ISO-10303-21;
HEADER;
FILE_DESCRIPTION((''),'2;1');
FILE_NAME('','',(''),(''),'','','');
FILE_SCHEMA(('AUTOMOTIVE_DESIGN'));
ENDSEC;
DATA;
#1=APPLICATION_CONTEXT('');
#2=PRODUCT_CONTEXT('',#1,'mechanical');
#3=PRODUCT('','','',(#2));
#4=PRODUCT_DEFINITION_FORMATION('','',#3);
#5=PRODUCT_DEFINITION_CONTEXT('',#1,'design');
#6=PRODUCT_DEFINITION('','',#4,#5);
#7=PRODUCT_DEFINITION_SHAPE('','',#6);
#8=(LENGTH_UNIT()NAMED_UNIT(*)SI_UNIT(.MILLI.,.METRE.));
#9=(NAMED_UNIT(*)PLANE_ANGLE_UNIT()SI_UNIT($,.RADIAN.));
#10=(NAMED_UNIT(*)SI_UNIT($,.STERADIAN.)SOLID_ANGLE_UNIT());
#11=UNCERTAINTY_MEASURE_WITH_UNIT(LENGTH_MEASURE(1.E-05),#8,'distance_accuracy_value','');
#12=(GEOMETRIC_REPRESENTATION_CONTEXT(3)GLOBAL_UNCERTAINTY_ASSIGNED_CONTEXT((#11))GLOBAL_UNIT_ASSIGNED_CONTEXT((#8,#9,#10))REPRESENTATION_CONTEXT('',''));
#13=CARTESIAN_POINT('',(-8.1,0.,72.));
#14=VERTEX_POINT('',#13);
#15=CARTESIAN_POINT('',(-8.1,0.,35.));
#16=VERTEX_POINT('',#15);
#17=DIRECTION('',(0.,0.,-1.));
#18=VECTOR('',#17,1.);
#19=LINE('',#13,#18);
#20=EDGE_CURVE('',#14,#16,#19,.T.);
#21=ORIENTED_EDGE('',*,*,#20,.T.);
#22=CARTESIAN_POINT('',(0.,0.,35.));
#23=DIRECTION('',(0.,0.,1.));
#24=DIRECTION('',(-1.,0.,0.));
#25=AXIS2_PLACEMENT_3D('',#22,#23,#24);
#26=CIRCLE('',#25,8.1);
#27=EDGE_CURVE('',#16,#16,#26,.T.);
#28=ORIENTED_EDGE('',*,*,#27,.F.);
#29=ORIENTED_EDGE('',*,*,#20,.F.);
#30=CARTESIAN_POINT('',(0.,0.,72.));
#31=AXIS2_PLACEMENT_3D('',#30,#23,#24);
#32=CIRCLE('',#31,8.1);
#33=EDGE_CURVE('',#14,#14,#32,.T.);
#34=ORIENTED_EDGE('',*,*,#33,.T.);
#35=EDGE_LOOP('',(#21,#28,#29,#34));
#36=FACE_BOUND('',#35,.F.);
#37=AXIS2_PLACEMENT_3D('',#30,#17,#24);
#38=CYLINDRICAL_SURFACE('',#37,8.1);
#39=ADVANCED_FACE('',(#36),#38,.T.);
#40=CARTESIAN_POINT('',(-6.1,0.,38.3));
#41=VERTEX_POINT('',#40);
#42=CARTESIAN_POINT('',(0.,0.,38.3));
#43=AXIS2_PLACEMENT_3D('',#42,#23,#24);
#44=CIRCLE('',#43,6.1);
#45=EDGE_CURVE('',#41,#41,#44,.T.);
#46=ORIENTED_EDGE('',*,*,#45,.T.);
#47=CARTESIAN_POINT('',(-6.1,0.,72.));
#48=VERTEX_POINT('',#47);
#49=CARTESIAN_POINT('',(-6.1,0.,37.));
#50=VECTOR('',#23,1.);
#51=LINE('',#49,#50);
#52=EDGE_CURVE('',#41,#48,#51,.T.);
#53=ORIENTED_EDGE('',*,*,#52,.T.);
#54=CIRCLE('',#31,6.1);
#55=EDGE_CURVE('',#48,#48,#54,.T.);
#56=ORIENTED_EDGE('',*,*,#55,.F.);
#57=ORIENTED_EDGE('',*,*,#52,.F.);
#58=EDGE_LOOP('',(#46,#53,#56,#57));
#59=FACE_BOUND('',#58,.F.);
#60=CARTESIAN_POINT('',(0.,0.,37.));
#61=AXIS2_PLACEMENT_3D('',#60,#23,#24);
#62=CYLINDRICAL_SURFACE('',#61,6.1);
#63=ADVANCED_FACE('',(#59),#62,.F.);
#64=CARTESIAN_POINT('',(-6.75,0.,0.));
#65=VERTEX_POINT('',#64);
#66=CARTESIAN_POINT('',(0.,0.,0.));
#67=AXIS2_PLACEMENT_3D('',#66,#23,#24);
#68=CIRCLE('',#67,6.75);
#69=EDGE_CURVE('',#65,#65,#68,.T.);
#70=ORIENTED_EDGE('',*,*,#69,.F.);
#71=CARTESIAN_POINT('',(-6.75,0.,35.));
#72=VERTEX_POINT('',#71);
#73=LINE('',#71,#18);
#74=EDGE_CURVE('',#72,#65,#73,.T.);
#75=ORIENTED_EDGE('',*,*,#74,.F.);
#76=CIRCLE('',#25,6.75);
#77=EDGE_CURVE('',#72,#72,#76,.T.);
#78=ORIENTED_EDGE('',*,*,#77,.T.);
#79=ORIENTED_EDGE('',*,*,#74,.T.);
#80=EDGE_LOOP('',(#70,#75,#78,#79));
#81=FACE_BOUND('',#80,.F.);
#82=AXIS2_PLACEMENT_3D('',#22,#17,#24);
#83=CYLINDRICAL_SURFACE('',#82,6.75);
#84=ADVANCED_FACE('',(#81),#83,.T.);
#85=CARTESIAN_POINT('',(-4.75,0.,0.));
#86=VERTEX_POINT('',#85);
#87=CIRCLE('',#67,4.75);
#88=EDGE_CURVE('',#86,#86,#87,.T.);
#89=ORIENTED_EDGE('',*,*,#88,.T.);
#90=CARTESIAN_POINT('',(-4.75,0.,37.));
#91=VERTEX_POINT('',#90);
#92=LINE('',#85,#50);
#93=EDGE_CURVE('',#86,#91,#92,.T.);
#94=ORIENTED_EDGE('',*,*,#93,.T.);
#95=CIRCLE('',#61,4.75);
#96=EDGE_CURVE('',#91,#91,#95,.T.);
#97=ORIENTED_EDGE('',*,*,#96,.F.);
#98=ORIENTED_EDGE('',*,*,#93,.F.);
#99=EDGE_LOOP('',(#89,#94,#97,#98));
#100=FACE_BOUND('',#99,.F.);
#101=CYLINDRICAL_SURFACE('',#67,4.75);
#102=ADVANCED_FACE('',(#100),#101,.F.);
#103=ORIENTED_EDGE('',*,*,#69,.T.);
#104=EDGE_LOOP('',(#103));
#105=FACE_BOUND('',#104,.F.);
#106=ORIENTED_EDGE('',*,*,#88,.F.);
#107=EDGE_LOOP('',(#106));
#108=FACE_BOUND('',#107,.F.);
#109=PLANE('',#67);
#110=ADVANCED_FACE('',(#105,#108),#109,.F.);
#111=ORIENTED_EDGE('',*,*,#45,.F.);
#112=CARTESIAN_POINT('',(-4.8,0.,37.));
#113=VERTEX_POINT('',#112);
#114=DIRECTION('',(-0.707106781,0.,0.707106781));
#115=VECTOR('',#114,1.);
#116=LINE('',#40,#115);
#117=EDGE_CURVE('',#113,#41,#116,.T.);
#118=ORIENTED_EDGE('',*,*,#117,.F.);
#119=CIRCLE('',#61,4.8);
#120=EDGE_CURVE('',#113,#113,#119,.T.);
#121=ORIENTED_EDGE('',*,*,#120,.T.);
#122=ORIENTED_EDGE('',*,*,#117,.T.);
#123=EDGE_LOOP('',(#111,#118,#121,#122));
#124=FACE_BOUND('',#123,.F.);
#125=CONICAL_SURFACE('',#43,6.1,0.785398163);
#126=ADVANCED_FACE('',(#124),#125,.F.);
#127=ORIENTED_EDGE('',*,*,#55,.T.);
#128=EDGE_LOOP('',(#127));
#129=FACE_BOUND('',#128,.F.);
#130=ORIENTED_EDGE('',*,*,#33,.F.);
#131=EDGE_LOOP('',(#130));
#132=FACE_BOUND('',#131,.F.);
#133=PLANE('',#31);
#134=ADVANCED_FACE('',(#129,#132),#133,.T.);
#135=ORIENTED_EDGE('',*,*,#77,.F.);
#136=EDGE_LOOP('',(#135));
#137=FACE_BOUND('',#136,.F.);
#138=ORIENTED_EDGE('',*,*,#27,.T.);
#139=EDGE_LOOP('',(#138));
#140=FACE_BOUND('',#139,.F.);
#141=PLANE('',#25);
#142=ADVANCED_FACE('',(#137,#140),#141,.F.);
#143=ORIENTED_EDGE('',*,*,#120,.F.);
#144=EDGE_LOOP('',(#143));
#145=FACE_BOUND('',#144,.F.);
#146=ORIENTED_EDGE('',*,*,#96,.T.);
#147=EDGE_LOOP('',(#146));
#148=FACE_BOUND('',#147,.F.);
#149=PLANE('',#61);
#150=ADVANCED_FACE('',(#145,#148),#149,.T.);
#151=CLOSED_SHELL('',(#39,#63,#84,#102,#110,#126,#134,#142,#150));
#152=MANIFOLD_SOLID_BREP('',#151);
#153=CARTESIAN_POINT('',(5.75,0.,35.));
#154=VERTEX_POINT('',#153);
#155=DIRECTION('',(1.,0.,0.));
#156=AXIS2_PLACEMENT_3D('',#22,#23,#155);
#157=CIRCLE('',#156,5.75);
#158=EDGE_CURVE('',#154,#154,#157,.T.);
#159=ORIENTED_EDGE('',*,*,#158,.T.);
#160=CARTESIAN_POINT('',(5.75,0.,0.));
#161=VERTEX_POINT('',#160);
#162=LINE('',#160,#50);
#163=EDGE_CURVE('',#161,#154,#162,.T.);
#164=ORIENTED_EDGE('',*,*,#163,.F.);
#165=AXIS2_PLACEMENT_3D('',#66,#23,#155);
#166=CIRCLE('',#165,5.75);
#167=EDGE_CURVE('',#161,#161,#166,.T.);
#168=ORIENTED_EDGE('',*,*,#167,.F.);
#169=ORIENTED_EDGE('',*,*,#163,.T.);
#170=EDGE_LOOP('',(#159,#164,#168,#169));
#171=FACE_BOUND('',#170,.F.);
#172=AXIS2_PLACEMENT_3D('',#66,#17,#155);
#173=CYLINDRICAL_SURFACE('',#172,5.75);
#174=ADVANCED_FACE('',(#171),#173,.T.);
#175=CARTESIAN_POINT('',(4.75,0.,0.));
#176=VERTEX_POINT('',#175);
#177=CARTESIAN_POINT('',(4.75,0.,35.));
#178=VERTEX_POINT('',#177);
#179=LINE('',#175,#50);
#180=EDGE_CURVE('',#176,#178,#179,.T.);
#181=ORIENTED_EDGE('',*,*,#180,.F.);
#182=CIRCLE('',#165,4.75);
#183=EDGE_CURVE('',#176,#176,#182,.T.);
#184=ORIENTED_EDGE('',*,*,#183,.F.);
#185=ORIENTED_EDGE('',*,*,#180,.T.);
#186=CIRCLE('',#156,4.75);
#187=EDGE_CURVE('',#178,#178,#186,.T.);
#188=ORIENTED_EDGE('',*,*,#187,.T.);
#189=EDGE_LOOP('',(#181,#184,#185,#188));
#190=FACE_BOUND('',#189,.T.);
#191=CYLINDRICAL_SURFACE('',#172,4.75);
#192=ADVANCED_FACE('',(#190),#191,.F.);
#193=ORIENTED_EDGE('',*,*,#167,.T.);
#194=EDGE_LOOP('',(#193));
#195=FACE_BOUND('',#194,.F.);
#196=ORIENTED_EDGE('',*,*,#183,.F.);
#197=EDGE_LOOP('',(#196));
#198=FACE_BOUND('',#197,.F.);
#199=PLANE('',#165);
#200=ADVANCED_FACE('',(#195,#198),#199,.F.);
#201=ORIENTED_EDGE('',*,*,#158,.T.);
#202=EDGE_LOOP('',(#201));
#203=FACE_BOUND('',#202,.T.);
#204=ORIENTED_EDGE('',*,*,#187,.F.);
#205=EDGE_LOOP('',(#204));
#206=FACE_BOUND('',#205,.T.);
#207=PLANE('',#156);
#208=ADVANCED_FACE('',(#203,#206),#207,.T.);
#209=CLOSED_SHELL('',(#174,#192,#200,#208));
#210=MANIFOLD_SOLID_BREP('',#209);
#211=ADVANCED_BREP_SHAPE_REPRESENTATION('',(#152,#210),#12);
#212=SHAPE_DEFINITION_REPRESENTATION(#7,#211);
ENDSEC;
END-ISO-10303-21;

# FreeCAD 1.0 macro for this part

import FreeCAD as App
import Part
import Sketcher

V = App.Vector


def edges_at(feature, points):
    """Names of the edges that pass closest to the given points."""
    edges = feature.Shape.Edges
    near = lambda p: min(range(len(edges)), key=lambda i: edges[i].distToShape(Part.Vertex(*p))[0])
    return sorted({f"Edge{near(p) + 1}" for p in points})

doc = App.newDocument("Part")
body = doc.addObject("PartDesign::Body", "Body")

# Sketch on XY plane
sketch1 = body.newObject("Sketcher::SketchObject", "Sketch")
sketch1.AttachmentSupport = (doc.getObject("XY_Plane"), [""])
sketch1.MapMode = "FlatFace"
sketch1.addGeometry(Part.Circle(V(0, 0, 0), V(0, 0, 1), 5.8), False)
sketch1.addGeometry(Part.Circle(V(0, 0, 0), V(0, 0, 1), 4.8), False)
sketch1.addConstraint(Sketcher.Constraint("Coincident", 0, 3, -1, 1))
sketch1.addConstraint(Sketcher.Constraint("Coincident", 1, 3, -1, 1))
sketch1.addConstraint(Sketcher.Constraint("Diameter", 0, 11.5))
sketch1.addConstraint(Sketcher.Constraint("Diameter", 1, 9.5))
pad1 = body.newObject("PartDesign::Pad", "Pad")
pad1.Profile = sketch1
pad1.Length = 35
body2 = doc.addObject("PartDesign::Body", "Body001")

# Sketch on XZ plane
sketch2 = body2.newObject("Sketcher::SketchObject", "Sketch001")
sketch2.AttachmentSupport = (doc.getObject("XZ_Plane001"), [""])
sketch2.MapMode = "FlatFace"
sketch2.addGeometry(Part.LineSegment(V(-6.8, 35, 0), V(-6.8, 0, 0)), False)
sketch2.addGeometry(Part.LineSegment(V(-6.8, 0, 0), V(-4.8, 0, 0)), False)
sketch2.addGeometry(Part.LineSegment(V(-4.8, 0, 0), V(-4.8, 37, 0)), False)
sketch2.addGeometry(Part.LineSegment(V(-4.8, 37, 0), V(-6.1, 37, 0)), False)
sketch2.addGeometry(Part.LineSegment(V(-6.1, 37, 0), V(-6.1, 72, 0)), False)
sketch2.addGeometry(Part.LineSegment(V(-6.1, 72, 0), V(-8.1, 72, 0)), False)
sketch2.addGeometry(Part.LineSegment(V(-8.1, 72, 0), V(-8.1, 35, 0)), False)
sketch2.addGeometry(Part.LineSegment(V(-8.1, 35, 0), V(-6.8, 35, 0)), False)
sketch2.addConstraint(Sketcher.Constraint("Coincident", 0, 2, 1, 1))
sketch2.addConstraint(Sketcher.Constraint("Coincident", 1, 2, 2, 1))
sketch2.addConstraint(Sketcher.Constraint("Coincident", 2, 2, 3, 1))
sketch2.addConstraint(Sketcher.Constraint("Coincident", 3, 2, 4, 1))
sketch2.addConstraint(Sketcher.Constraint("Coincident", 4, 2, 5, 1))
sketch2.addConstraint(Sketcher.Constraint("Coincident", 5, 2, 6, 1))
sketch2.addConstraint(Sketcher.Constraint("Coincident", 6, 2, 7, 1))
sketch2.addConstraint(Sketcher.Constraint("Coincident", 7, 2, 0, 1))
sketch2.addConstraint(Sketcher.Constraint("Vertical", 0))
sketch2.addConstraint(Sketcher.Constraint("Horizontal", 1))
sketch2.addConstraint(Sketcher.Constraint("Vertical", 2))
sketch2.addConstraint(Sketcher.Constraint("Horizontal", 3))
sketch2.addConstraint(Sketcher.Constraint("Vertical", 4))
sketch2.addConstraint(Sketcher.Constraint("Horizontal", 5))
sketch2.addConstraint(Sketcher.Constraint("Vertical", 6))
sketch2.addConstraint(Sketcher.Constraint("Horizontal", 7))
sketch2.addConstraint(Sketcher.Constraint("PointOnObject", 0, 2, -1))
sketch2.addConstraint(Sketcher.Constraint("Equal", 1, 5))
sketch2.addConstraint(Sketcher.Constraint("Equal", 0, 4))
sketch2.addConstraint(Sketcher.Constraint("DistanceX", 1, 1, 1, 2, 2.0))
sketch2.addConstraint(Sketcher.Constraint("DistanceY", 0, 2, 0, 1, 35.0))
sketch2.addConstraint(Sketcher.Constraint("DistanceY", 2, 1, 2, 2, 37.0))
sketch2.addConstraint(Sketcher.Constraint("DistanceX", 3, 2, 3, 1, 1.35))
sketch2.addConstraint(Sketcher.Constraint("DistanceX", 3, 2, -1, 1, 6.1))
revolution = body2.newObject("PartDesign::Revolution", "Revolution")
revolution.Profile = sketch2
revolution.ReferenceAxis = (sketch2, ["V_Axis"])
revolution.Angle = 360
doc.recompute()

chamfer = body2.newObject("PartDesign::Chamfer", "Chamfer")
chamfer.Base = (revolution, edges_at(revolution, [(6.1, 0, 37)]))
chamfer.Size = 1.3

doc.recompute()
